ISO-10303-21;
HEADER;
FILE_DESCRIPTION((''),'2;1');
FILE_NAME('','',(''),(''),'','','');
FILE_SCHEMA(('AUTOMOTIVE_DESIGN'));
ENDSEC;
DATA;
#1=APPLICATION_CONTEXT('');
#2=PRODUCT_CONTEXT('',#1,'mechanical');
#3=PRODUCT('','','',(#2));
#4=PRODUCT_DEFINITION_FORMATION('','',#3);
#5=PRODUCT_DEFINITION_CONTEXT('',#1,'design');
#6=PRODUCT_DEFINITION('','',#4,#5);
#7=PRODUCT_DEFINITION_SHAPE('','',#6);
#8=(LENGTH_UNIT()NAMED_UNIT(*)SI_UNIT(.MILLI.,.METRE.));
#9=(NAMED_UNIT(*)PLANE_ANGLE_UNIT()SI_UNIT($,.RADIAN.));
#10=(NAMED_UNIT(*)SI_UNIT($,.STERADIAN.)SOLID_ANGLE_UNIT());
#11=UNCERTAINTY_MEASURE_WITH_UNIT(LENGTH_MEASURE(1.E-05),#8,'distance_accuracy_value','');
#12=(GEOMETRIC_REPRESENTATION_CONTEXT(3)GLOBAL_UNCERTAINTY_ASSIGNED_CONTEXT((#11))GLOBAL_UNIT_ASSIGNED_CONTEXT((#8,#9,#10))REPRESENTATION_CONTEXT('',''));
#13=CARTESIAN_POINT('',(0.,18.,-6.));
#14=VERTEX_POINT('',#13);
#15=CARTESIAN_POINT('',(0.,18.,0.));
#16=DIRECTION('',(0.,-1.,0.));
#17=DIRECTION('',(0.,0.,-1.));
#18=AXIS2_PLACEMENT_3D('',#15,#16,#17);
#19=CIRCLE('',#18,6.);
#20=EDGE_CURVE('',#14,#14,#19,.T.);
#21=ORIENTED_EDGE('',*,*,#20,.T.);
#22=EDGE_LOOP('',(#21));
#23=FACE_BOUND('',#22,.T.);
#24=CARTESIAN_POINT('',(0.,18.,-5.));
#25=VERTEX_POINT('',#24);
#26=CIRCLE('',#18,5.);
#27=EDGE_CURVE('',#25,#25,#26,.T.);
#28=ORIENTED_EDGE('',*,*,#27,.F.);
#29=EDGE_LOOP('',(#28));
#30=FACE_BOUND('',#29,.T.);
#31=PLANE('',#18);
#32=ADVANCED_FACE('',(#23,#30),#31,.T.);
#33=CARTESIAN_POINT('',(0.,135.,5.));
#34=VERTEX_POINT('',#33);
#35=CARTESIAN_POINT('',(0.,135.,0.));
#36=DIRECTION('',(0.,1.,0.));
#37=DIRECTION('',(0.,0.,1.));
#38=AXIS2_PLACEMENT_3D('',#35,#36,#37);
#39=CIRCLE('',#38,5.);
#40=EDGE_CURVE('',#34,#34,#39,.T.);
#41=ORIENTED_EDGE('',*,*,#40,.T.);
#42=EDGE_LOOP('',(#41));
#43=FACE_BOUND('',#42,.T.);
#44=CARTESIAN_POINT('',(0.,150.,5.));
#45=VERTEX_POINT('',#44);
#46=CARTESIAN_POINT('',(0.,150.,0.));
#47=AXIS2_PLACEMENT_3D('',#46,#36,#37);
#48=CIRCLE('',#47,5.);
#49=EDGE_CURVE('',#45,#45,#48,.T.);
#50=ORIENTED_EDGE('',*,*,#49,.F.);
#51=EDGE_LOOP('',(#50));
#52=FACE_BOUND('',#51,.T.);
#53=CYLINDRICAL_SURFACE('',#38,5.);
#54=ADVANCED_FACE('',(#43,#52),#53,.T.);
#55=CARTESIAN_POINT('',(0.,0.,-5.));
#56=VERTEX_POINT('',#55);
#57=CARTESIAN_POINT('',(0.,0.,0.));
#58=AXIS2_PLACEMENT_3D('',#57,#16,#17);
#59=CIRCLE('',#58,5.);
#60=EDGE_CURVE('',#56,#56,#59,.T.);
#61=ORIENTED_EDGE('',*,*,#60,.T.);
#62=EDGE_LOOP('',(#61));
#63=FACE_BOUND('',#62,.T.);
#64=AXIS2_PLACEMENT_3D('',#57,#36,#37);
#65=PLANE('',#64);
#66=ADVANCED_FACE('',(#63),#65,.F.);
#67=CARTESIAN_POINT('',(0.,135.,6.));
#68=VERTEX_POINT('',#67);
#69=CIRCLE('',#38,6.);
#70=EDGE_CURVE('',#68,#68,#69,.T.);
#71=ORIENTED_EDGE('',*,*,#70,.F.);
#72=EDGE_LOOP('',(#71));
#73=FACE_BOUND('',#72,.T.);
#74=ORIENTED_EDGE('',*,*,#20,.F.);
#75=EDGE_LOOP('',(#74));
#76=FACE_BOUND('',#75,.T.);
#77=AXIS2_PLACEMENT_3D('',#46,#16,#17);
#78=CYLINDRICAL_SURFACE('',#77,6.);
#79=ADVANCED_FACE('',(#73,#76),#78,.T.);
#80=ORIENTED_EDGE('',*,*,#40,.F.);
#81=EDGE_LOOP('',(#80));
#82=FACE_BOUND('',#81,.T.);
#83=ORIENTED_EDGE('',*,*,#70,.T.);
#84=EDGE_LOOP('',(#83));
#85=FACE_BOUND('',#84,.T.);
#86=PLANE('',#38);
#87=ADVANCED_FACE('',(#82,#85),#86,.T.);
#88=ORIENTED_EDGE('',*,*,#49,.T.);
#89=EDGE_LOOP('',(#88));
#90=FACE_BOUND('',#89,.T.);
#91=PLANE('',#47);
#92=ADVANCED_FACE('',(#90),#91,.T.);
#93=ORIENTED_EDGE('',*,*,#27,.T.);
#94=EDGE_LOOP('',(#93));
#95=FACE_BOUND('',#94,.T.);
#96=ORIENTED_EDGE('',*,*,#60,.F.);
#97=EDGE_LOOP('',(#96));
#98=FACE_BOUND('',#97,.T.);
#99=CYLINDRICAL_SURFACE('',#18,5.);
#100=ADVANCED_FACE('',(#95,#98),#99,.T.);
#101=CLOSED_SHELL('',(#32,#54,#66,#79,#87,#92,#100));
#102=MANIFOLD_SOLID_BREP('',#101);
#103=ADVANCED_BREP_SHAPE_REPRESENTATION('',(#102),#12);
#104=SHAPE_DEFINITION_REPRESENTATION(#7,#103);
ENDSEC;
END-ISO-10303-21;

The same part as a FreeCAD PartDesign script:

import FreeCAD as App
import Part
import Sketcher
Q = App.Units.Quantity

doc = App.newDocument("Part")
body = doc.addObject("PartDesign::Body", "Body")

sketch1 = body.newObject("Sketcher::SketchObject", "Sketch")
sketch1.AttachmentSupport = (doc.getObject("XZ_Plane"), [""])
sketch1.MapMode = "FlatFace"
sketch1.addGeometry(Part.Circle(App.Vector(0, 0, 0), App.Vector(0, 0, 1), 6), False)
sketch1.addConstraint([
    Sketcher.Constraint("Coincident", 0, 3, -1, 1),
    Sketcher.Constraint("Diameter", 0, Q("12 mm")),
])
pad1 = body.newObject("PartDesign::Pad", "Pad")
pad1.Profile = sketch1
pad1.Length = 150
pad1.Reversed = True

sketch2 = body.newObject("Sketcher::SketchObject", "Sketch001")
sketch2.AttachmentSupport = (doc.getObject("XZ_Plane"), [""])
sketch2.MapMode = "FlatFace"
sketch2.AttachmentOffset = App.Placement(App.Vector(0, 0, -135), App.Rotation())
sketch2.addGeometry([
    Part.Circle(App.Vector(0, 0, 0), App.Vector(0, 0, 1), 6),
    Part.Circle(App.Vector(0, 0, 0), App.Vector(0, 0, 1), 5),
], False)
sketch2.addConstraint([
    Sketcher.Constraint("Coincident", 0, 3, -1, 1),
    Sketcher.Constraint("Coincident", 1, 3, -1, 1),
    Sketcher.Constraint("Diameter", 0, Q("12 mm")),
    Sketcher.Constraint("Diameter", 1, Q("10 mm")),
])
pocket1 = body.newObject("PartDesign::Pocket", "Pocket")
pocket1.Profile = sketch2
pocket1.Length = 15

sketch3 = body.newObject("Sketcher::SketchObject", "Sketch002")
sketch3.AttachmentSupport = (doc.getObject("XZ_Plane"), [""])
sketch3.MapMode = "FlatFace"
sketch3.addGeometry([
    Part.Circle(App.Vector(0, 0, 0), App.Vector(0, 0, 1), 6),
    Part.Circle(App.Vector(0, 0, 0), App.Vector(0, 0, 1), 5),
], False)
sketch3.addConstraint([
    Sketcher.Constraint("Coincident", 0, 3, -1, 1),
    Sketcher.Constraint("Coincident", 1, 3, -1, 1),
    Sketcher.Constraint("Diameter", 0, Q("12 mm")),
    Sketcher.Constraint("Diameter", 1, Q("10 mm")),
])
pocket2 = body.newObject("PartDesign::Pocket", "Pocket001")
pocket2.Profile = sketch3
pocket2.Length = 18

doc.recompute()
